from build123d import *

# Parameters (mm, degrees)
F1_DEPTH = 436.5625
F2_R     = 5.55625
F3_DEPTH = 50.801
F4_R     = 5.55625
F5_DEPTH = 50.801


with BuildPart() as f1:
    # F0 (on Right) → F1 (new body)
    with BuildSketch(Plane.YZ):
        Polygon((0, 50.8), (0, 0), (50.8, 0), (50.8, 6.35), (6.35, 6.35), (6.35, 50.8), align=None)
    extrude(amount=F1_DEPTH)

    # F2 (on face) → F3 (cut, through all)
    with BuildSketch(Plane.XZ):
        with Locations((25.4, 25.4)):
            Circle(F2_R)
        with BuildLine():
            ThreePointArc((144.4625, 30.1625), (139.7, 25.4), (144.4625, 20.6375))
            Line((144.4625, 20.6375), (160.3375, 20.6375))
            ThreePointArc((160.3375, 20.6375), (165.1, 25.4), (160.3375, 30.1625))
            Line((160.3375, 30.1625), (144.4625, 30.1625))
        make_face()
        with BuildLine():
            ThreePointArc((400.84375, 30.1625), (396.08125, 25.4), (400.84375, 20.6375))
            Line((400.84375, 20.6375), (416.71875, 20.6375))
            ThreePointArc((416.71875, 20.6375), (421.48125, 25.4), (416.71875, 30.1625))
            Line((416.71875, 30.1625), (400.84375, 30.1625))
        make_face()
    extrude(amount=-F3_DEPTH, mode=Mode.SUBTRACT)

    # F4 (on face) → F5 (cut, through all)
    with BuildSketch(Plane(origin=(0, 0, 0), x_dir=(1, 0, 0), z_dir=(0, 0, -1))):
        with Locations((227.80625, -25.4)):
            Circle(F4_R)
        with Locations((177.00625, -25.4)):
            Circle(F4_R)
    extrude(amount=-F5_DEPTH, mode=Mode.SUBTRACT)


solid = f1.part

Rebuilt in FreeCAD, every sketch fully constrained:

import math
import FreeCAD as App
import Part
import Sketcher

V = App.Vector
Q = App.Units.Quantity

doc = App.newDocument("Part")
params = doc.addObject("Spreadsheet::Sheet", "Params")
for row, (alias, value) in enumerate([
    ("sketch1_width", "2 in"),
    ("sketch1_width2", "1.75 in"),
    ("pad1_length", "17.1875 in"),
    ("sketch2_diameter", "0.4375 in"),
    ("sketch2_radius", "0.1875 in"),
    ("sketch2_width", "0.625 in"),
    ("sketch3_diameter", "0.4375 in"),
], start=1):
    params.set(f"A{row}", alias)
    params.set(f"B{row}", "=" + value)
    params.setAlias(f"B{row}", alias)

body = doc.addObject("PartDesign::Body", "Body")

# Sketch on YZ plane
sketch1 = body.newObject("Sketcher::SketchObject", "Sketch")
sketch1.AttachmentSupport = (doc.getObject("YZ_Plane"), [""])
sketch1.MapMode = "FlatFace"
sketch1.addGeometry([
    Part.LineSegment(V(0, 50.8, 0), V(0, 0, 0)),  # 0
    Part.LineSegment(V(0, 0, 0), V(50.8, 0, 0)),  # 1
    Part.LineSegment(V(50.8, 0, 0), V(50.8, 6.35, 0)),  # 2
    Part.LineSegment(V(50.8, 6.35, 0), V(6.35, 6.35, 0)),  # 3
    Part.LineSegment(V(6.35, 6.35, 0), V(6.35, 50.8, 0)),  # 4
    Part.LineSegment(V(6.35, 50.8, 0), V(0, 50.8, 0)),  # 5
], False)
sketch1.addConstraint([
    Sketcher.Constraint("Coincident", 0, 2, 1, 1),
    Sketcher.Constraint("Coincident", 1, 2, 2, 1),
    Sketcher.Constraint("Coincident", 2, 2, 3, 1),
    Sketcher.Constraint("Coincident", 3, 2, 4, 1),
    Sketcher.Constraint("Coincident", 4, 2, 5, 1),
    Sketcher.Constraint("Coincident", 5, 2, 0, 1),
    Sketcher.Constraint("Vertical", 0),
    Sketcher.Constraint("Horizontal", 1),
    Sketcher.Constraint("Vertical", 2),
    Sketcher.Constraint("Horizontal", 3),
    Sketcher.Constraint("Vertical", 4),
    Sketcher.Constraint("Horizontal", 5),
    Sketcher.Constraint("Coincident", 0, 2, -1, 1),
    Sketcher.Constraint("Equal", 1, 0),
    Sketcher.Constraint("Equal", 5, 2),
    Sketcher.Constraint("DistanceX", 1, 1, 1, 2, Q("2 in")),
    Sketcher.Constraint("DistanceX", 3, 2, 3, 1, Q("1.75 in")),
])
sketch1.setExpression("Constraints[15]", "Params.sketch1_width")
sketch1.setExpression("Constraints[16]", "Params.sketch1_width2")
pad1 = body.newObject("PartDesign::Pad", "Pad")
pad1.Profile = sketch1
pad1.setExpression("Length", "Params.pad1_length")

# Sketch on XZ plane
sketch2 = body.newObject("Sketcher::SketchObject", "Sketch001")
sketch2.AttachmentSupport = (doc.getObject("XZ_Plane"), [""])
sketch2.MapMode = "FlatFace"
sketch2.addGeometry([
    Part.Circle(V(25.4, 25.4, 0), V(0, 0, 1), 5.55625),  # 0
    Part.ArcOfCircle(Part.Circle(V(144.4625, 25.4, 0), V(0, 0, 1), 4.7625), math.radians(90), math.radians(270)),  # 1
    Part.LineSegment(V(144.4625, 20.6375, 0), V(160.3375, 20.6375, 0)),  # 2
    Part.ArcOfCircle(Part.Circle(V(160.3375, 25.4, 0), V(0, 0, 1), 4.7625), math.radians(-90), math.radians(90)),  # 3
    Part.LineSegment(V(160.3375, 30.1625, 0), V(144.4625, 30.1625, 0)),  # 4
    Part.ArcOfCircle(Part.Circle(V(400.84375, 25.4, 0), V(0, 0, 1), 4.7625), math.radians(90), math.radians(270)),  # 5
    Part.LineSegment(V(400.84375, 20.6375, 0), V(416.71875, 20.6375, 0)),  # 6
    Part.ArcOfCircle(Part.Circle(V(416.71875, 25.4, 0), V(0, 0, 1), 4.7625), math.radians(-90), math.radians(90)),  # 7
    Part.LineSegment(V(416.71875, 30.1625, 0), V(400.84375, 30.1625, 0)),  # 8
], False)
sketch2.addConstraint([
    Sketcher.Constraint("Tangent", 1, 2, 2, 1),
    Sketcher.Constraint("Tangent", 2, 2, 3, 1),
    Sketcher.Constraint("Tangent", 3, 2, 4, 1),
    Sketcher.Constraint("Tangent", 4, 2, 1, 1),
    Sketcher.Constraint("Tangent", 5, 2, 6, 1),
    Sketcher.Constraint("Tangent", 6, 2, 7, 1),
    Sketcher.Constraint("Tangent", 7, 2, 8, 1),
    Sketcher.Constraint("Tangent", 8, 2, 5, 1),
    Sketcher.Constraint("Horizontal", 2),
    Sketcher.Constraint("Horizontal", 4),
    Sketcher.Constraint("Horizontal", 6),
    Sketcher.Constraint("Horizontal", 8),
    Sketcher.Constraint("Equal", 3, 5),
    Sketcher.Constraint("Horizontal", 0, 3, 1, 3),
    Sketcher.Constraint("Horizontal", 3, 3, 5, 3),
    Sketcher.Constraint("Equal", 4, 6),
    Sketcher.Constraint("Diameter", 0, Q("0.4375 in")),
    Sketcher.Constraint("DistanceX", -1, 1, 0, 3, Q("1 in")),
    Sketcher.Constraint("DistanceY", -1, 1, 0, 3, Q("1 in")),
    Sketcher.Constraint("Radius", 1, Q("0.1875 in")),
    Sketcher.Constraint("DistanceX", 2, 1, 2, 2, Q("0.625 in")),
    Sketcher.Constraint("DistanceX", -1, 1, 1, 3, Q("5.6875 in")),
    Sketcher.Constraint("DistanceX", -1, 1, 5, 3, Q("15.78125 in")),
])
sketch2.setExpression("Constraints[16]", "Params.sketch2_diameter")
sketch2.setExpression("Constraints[19]", "Params.sketch2_radius")
sketch2.setExpression("Constraints[20]", "Params.sketch2_width")
pocket1 = body.newObject("PartDesign::Pocket", "Pocket")
pocket1.Profile = sketch2
pocket1.Type = "ThroughAll"

# Sketch on XY plane
sketch3 = body.newObject("Sketcher::SketchObject", "Sketch002")
sketch3.AttachmentSupport = (doc.getObject("XY_Plane"), [""])
sketch3.MapMode = "FlatFace"
sketch3.addGeometry([
    Part.Circle(V(227.80625, 25.4, 0), V(0, 0, 1), 5.55625),
    Part.Circle(V(177.00625, 25.4, 0), V(0, 0, 1), 5.55625),
], False)
sketch3.addConstraint([
    Sketcher.Constraint("Equal", 0, 1),
    Sketcher.Constraint("Horizontal", 0, 3, 1, 3),
    Sketcher.Constraint("Diameter", 0, Q("0.4375 in")),
    Sketcher.Constraint("DistanceY", -1, 1, 0, 3, Q("1 in")),
    Sketcher.Constraint("DistanceX", 1, 3, 0, 3, Q("2 in")),
    Sketcher.Constraint("DistanceX", -1, 1, 0, 3, Q("8.96875 in")),
])
sketch3.setExpression("Constraints[2]", "Params.sketch3_diameter")
pocket2 = body.newObject("PartDesign::Pocket", "Pocket001")
pocket2.Profile = sketch3
pocket2.Type = "ThroughAll"
pocket2.Reversed = True

doc.recompute()
